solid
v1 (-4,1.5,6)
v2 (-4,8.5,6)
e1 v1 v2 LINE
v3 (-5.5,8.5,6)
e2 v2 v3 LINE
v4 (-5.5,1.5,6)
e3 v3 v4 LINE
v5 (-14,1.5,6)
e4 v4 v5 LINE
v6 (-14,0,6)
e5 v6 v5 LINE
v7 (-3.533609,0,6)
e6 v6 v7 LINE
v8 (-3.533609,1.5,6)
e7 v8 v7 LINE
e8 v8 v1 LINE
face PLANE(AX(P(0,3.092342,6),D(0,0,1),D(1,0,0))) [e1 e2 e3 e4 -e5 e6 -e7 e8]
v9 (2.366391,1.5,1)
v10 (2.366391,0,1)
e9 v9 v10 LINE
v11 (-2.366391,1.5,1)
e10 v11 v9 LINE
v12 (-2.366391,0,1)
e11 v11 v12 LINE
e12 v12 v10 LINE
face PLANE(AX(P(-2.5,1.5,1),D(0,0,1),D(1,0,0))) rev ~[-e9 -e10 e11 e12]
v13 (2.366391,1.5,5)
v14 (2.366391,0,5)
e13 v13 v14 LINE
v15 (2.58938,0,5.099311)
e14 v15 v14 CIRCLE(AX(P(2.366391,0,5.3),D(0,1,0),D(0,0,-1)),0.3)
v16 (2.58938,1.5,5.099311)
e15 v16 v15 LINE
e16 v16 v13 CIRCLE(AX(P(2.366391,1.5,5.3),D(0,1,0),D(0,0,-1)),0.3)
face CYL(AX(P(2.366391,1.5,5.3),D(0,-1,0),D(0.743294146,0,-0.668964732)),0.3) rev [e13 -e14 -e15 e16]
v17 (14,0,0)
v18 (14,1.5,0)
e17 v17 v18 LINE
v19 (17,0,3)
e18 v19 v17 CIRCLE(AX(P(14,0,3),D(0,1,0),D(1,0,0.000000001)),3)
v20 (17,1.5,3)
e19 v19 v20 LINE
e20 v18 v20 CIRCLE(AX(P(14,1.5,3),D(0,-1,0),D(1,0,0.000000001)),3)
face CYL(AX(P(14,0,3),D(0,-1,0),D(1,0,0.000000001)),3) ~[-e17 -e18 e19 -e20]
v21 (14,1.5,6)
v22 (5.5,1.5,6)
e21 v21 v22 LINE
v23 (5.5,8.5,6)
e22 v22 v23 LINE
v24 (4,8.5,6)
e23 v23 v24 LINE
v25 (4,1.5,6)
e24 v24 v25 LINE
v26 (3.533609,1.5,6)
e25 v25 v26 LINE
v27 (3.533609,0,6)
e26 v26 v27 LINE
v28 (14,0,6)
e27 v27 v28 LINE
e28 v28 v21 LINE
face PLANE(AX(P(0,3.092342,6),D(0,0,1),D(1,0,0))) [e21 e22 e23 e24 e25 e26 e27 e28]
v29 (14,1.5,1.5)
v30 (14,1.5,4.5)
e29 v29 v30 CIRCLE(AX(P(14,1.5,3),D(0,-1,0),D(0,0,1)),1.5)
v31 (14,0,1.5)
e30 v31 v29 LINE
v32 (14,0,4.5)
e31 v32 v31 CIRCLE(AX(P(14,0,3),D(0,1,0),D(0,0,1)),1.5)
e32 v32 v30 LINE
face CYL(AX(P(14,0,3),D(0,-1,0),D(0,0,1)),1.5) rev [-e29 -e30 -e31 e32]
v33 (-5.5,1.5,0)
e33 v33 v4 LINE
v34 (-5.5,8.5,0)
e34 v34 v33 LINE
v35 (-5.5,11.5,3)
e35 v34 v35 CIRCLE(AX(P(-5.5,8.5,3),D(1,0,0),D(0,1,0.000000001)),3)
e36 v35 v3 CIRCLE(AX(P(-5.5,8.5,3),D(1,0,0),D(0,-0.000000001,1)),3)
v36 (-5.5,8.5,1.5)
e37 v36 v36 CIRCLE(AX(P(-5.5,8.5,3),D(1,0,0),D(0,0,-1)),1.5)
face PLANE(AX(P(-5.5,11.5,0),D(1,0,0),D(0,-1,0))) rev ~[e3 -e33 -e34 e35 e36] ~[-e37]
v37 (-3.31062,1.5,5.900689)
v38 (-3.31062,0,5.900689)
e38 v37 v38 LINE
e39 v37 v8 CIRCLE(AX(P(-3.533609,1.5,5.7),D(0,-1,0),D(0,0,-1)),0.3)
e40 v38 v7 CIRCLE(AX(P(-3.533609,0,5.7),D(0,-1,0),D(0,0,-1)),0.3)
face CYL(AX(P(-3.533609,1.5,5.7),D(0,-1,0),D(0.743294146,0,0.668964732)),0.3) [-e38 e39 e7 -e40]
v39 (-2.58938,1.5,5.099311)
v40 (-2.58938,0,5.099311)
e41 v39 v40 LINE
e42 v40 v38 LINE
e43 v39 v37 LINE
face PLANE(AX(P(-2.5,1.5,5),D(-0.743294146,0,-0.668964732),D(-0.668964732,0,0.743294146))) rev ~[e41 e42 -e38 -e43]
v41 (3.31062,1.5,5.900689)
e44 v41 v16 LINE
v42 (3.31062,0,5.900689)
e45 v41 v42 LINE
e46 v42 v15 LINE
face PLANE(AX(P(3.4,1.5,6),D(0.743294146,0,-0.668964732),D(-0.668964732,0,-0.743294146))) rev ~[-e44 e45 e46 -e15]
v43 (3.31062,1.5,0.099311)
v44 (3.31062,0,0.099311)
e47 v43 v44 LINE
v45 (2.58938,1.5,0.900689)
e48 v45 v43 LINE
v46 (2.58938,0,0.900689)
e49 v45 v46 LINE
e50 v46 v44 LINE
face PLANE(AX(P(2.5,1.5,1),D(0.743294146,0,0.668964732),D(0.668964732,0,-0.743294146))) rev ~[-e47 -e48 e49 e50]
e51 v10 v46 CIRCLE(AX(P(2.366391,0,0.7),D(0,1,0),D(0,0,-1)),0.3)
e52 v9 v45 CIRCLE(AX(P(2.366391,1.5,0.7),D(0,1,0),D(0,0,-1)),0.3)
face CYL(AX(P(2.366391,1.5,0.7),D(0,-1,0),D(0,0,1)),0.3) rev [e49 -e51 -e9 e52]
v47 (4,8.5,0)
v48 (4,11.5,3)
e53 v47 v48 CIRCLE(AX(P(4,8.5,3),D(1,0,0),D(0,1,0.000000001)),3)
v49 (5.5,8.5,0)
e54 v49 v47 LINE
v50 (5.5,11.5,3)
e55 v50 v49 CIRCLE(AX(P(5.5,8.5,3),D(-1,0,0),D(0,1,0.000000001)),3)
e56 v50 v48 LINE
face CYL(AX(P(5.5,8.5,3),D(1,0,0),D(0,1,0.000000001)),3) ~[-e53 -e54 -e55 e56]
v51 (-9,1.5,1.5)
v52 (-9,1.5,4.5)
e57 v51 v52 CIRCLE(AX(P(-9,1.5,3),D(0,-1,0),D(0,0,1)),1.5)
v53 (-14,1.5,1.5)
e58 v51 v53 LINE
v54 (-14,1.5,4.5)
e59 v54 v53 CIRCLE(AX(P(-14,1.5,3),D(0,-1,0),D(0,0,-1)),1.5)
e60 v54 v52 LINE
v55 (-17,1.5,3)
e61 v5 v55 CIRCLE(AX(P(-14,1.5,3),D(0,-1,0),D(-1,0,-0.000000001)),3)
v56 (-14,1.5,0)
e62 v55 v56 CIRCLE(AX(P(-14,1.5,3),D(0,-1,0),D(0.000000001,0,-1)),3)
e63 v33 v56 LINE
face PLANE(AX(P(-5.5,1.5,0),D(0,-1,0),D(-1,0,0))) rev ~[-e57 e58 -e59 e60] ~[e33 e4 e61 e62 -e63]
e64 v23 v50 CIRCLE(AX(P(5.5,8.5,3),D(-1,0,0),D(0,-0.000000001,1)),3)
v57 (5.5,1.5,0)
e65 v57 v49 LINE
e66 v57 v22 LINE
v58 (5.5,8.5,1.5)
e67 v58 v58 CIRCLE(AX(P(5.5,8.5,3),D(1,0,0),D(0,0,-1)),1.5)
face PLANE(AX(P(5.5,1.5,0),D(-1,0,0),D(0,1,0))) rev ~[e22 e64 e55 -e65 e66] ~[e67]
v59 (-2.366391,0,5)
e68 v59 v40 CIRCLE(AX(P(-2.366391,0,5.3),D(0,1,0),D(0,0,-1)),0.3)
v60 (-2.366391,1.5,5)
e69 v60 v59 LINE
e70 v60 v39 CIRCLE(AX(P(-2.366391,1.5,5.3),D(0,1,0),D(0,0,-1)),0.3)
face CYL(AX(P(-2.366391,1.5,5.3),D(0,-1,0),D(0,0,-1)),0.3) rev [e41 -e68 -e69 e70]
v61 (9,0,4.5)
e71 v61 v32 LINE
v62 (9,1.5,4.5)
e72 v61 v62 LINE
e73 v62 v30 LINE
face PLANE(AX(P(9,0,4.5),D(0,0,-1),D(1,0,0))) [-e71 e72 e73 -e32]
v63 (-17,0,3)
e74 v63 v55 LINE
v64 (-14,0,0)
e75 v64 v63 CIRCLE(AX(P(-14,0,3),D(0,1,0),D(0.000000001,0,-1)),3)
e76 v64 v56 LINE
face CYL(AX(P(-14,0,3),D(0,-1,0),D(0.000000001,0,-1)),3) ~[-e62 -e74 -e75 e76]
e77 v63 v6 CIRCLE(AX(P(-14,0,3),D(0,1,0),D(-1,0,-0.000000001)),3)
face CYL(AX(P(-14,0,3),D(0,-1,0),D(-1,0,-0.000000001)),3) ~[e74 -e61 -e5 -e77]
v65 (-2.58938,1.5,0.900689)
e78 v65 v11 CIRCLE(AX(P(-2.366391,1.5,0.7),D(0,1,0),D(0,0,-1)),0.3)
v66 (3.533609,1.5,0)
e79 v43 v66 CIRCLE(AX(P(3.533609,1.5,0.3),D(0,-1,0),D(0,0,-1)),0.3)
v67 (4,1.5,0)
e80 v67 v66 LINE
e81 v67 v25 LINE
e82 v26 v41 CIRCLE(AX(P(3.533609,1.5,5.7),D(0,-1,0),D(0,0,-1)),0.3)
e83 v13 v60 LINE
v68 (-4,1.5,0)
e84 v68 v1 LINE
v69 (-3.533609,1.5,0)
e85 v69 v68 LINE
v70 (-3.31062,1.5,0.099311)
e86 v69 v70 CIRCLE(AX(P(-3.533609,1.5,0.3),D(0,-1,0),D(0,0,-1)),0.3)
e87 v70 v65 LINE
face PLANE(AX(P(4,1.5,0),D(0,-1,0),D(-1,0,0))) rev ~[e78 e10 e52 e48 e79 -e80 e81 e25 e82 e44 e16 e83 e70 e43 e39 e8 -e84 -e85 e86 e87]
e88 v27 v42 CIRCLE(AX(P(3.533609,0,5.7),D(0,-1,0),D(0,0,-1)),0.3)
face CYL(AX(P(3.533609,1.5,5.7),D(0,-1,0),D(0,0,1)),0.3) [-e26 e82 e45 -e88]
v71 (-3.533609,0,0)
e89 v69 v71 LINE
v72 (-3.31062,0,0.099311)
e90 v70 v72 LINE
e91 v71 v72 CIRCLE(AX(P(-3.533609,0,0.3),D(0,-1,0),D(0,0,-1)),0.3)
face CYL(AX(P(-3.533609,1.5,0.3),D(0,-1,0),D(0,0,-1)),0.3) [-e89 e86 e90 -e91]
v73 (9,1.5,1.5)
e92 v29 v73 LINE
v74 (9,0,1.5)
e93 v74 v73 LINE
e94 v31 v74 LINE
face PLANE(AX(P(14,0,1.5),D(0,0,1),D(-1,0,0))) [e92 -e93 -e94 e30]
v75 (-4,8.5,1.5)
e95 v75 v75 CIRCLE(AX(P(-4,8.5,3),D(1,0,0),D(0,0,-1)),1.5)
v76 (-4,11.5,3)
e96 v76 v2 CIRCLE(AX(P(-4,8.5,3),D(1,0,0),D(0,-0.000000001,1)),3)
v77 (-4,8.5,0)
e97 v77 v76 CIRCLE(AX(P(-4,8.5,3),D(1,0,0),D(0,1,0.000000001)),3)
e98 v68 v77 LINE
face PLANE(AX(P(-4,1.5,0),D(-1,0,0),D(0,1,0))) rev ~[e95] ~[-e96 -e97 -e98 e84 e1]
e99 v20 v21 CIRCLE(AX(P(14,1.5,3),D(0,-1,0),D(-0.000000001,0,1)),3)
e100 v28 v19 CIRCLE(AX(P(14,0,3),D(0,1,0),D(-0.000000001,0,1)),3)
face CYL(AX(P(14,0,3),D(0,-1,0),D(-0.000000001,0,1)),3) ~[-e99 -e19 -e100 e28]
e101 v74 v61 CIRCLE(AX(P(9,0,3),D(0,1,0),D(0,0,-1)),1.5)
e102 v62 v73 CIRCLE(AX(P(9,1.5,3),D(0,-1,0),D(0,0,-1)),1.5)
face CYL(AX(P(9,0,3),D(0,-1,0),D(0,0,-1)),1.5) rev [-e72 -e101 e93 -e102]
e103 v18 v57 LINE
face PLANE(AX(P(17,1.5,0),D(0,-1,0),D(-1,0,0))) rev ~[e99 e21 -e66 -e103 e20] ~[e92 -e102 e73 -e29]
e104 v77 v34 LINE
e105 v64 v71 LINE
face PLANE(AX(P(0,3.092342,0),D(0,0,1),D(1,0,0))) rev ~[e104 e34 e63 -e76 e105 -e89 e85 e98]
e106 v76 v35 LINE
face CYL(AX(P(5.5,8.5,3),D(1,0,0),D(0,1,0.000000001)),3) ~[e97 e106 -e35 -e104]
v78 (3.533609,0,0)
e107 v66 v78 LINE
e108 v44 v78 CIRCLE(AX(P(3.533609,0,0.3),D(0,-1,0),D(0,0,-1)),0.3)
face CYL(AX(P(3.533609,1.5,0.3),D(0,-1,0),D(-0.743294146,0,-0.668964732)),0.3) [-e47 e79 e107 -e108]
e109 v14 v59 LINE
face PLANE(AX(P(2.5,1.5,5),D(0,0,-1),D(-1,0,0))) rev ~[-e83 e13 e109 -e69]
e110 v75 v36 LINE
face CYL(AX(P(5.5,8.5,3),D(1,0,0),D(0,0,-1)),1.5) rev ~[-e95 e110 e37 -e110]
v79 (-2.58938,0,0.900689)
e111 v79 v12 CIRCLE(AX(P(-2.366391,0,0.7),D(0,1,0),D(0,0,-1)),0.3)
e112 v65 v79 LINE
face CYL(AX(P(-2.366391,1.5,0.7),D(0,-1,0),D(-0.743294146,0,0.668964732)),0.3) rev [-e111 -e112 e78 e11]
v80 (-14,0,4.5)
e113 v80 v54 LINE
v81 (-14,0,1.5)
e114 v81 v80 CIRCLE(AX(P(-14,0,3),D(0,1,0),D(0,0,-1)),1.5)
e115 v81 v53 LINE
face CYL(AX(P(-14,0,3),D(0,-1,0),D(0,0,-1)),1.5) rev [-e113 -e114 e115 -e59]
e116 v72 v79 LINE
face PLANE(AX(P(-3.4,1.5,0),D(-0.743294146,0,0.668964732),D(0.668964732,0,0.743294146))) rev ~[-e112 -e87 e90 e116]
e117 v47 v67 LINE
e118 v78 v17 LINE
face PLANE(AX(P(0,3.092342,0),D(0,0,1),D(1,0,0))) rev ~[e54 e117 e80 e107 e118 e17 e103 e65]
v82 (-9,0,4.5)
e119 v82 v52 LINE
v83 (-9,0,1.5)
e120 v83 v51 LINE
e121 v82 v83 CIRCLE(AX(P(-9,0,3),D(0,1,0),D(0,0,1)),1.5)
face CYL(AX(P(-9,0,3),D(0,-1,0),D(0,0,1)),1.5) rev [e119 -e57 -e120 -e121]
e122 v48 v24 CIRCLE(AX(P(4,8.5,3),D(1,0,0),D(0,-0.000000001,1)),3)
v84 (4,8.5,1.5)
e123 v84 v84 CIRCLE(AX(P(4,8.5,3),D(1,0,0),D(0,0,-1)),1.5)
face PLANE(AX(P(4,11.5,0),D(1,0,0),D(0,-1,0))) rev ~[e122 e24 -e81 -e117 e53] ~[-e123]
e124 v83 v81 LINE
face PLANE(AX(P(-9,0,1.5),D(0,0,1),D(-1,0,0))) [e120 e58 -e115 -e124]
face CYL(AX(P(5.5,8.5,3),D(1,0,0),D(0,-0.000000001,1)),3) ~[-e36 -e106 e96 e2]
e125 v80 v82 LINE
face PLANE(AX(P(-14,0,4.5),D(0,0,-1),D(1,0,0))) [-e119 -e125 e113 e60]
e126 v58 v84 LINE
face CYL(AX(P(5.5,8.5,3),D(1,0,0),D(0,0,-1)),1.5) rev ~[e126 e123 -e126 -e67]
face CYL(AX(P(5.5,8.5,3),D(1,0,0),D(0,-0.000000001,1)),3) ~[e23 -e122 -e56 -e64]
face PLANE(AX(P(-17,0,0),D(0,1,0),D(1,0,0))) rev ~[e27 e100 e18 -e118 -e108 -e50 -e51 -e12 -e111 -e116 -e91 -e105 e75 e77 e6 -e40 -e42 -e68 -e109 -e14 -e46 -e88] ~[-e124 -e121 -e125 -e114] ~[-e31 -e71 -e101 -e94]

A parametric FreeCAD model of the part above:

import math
import FreeCAD as App
import Part
import Sketcher
from FreeCAD import Vector


def edges_at(feature, points):
    """Names of the edges that pass closest to the given points."""
    edges = feature.Shape.Edges
    near = lambda p: min(range(len(edges)), key=lambda i: edges[i].distToShape(Part.Vertex(*p))[0])
    return sorted({f"Edge{near(p) + 1}" for p in points})


def add_polygon(sketch, points):
    """Adds a closed chain of lines whose ends are joined by coincident constraints."""
    first, n = sketch.GeometryCount, len(points)
    for a, b in zip(points, points[1:] + points[:1]):
        sketch.addGeometry(Part.LineSegment(App.Vector(*a, 0), App.Vector(*b, 0)), False)
    for i in range(n):
        sketch.addConstraint(Sketcher.Constraint("Coincident", first + i, 2, first + (i + 1) % n, 1))

doc = App.newDocument("Part")
body = doc.addObject("PartDesign::Body", "Body")

sketch1 = body.newObject("Sketcher::SketchObject", "Sketch")
sketch1.AttachmentSupport = (doc.getObject("XY_Plane"), [""])
sketch1.MapMode = "FlatFace"
add_polygon(sketch1, [(-17, 0), (17, 0), (17, 1.5), (5.5, 1.5), (5.5, 11.5), (4, 11.5), (4, 1.5), (-4, 1.5), (-4, 11.5), (-5.5, 11.5), (-5.5, 1.5), (-17, 1.5)])
sketch1.addConstraint([
    Sketcher.Constraint("Horizontal", 0),
    Sketcher.Constraint("Vertical", 1),
    Sketcher.Constraint("Horizontal", 2),
    Sketcher.Constraint("Vertical", 3),
    Sketcher.Constraint("Horizontal", 4),
    Sketcher.Constraint("Vertical", 5),
    Sketcher.Constraint("Horizontal", 6),
    Sketcher.Constraint("Vertical", 7),
    Sketcher.Constraint("Horizontal", 8),
    Sketcher.Constraint("Vertical", 9),
    Sketcher.Constraint("Horizontal", 10),
    Sketcher.Constraint("Vertical", 11),
    Sketcher.Constraint("Symmetric", 0, 2, 11, 2, -1, 1),
    Sketcher.Constraint("Symmetric", 4, 2, 7, 2, -2),
    Sketcher.Constraint("Symmetric", 2, 2, 9, 2, -2),
    Sketcher.Constraint("Horizontal", 2, 2, 5, 2),
    Sketcher.Constraint("Equal", 8, 1),
    Sketcher.Constraint("DistanceX", 0, 1, 0, 2, 34.0),
    Sketcher.Constraint("DistanceX", 6, 2, 6, 1, 8.0),
    Sketcher.Constraint("DistanceY", 3, 1, 3, 2, 10.0),
    Sketcher.Constraint("DistanceX", 2, 2, 2, 1, 11.5),
])
pad1 = body.newObject("PartDesign::Pad", "Pad")
pad1.Profile = sketch1
pad1.Length = 6

sketch2 = body.newObject("Sketcher::SketchObject", "Sketch001")
sketch2.AttachmentSupport = (doc.getObject("XZ_Plane"), [""])
sketch2.MapMode = "FlatFace"
sketch2.addGeometry([
    Part.LineSegment(Vector(-14, 6, 0), Vector(-17, 6, 0)),
    Part.LineSegment(Vector(-17, 6, 0), Vector(-17, 3, 0)),
    Part.ArcOfCircle(Part.Circle(Vector(-14, 3, 0), Vector(0, 0, 1), 3), math.radians(90), math.radians(180)),
    Part.ArcOfCircle(Part.Circle(Vector(-14, 3, 0), Vector(0, 0, 1), 3), math.radians(180), math.radians(270)),
    Part.LineSegment(Vector(-17, 3, 0), Vector(-17, 0, 0)),
    Part.LineSegment(Vector(-17, 0, 0), Vector(-14, 0, 0)),
    Part.LineSegment(Vector(17, 0, 0), Vector(17, 3, 0)),
    Part.ArcOfCircle(Part.Circle(Vector(14, 3, 0), Vector(0, 0, 1), 3), math.radians(-90), math.radians(0)),
    Part.LineSegment(Vector(14, 0, 0), Vector(17, 0, 0)),
    Part.LineSegment(Vector(17, 6, 0), Vector(14, 6, 0)),
    Part.ArcOfCircle(Part.Circle(Vector(14, 3, 0), Vector(0, 0, 1), 3), math.radians(0), math.radians(90)),
    Part.LineSegment(Vector(17, 3, 0), Vector(17, 6, 0)),
], False)
sketch2.addConstraint([
    Sketcher.Constraint("Coincident", 0, 2, 1, 1),
    Sketcher.Constraint("Tangent", 1, 2, 2, 2),
    Sketcher.Constraint("Tangent", 2, 1, 0, 1),
    Sketcher.Constraint("Tangent", 3, 1, 4, 1),
    Sketcher.Constraint("Coincident", 4, 2, 5, 1),
    Sketcher.Constraint("Tangent", 5, 2, 3, 2),
    Sketcher.Constraint("Tangent", 6, 2, 7, 2),
    Sketcher.Constraint("Tangent", 7, 1, 8, 1),
    Sketcher.Constraint("Coincident", 8, 2, 6, 1),
    Sketcher.Constraint("Tangent", 9, 2, 10, 2),
    Sketcher.Constraint("Tangent", 10, 1, 11, 1),
    Sketcher.Constraint("Coincident", 11, 2, 9, 1),
    Sketcher.Constraint("Horizontal", 0),
    Sketcher.Constraint("Vertical", 1),
    Sketcher.Constraint("Vertical", 4),
    Sketcher.Constraint("Horizontal", 5),
    Sketcher.Constraint("Vertical", 6),
    Sketcher.Constraint("Horizontal", 8),
    Sketcher.Constraint("Horizontal", 9),
    Sketcher.Constraint("Vertical", 11),
    Sketcher.Constraint("Coincident", 3, 3, 2, 3),
    Sketcher.Constraint("Coincident", 10, 3, 7, 3),
    Sketcher.Constraint("Equal", 2, 3),
    Sketcher.Constraint("Equal", 3, 7),
    Sketcher.Constraint("Equal", 7, 10),
    Sketcher.Constraint("Symmetric", 5, 2, 7, 1, -1, 1),
    Sketcher.Constraint("PointOnObject", 4, 2, -1),
    Sketcher.Constraint("Radius", 2, 3.0),
    Sketcher.Constraint("DistanceX", 2, 3, -1, 1, 14.0),
])
pocket1 = body.newObject("PartDesign::Pocket", "Pocket")
pocket1.Profile = sketch2
pocket1.Type = "ThroughAll"

sketch3 = body.newObject("Sketcher::SketchObject", "Sketch002")
sketch3.AttachmentSupport = (doc.getObject("XZ_Plane"), [""])
sketch3.MapMode = "FlatFace"
sketch3.addGeometry([
    Part.LineSegment(Vector(-14, 1.5, 0), Vector(-9, 1.5, 0)),
    Part.ArcOfCircle(Part.Circle(Vector(-9, 3, 0), Vector(0, 0, 1), 1.5), math.radians(-90), math.radians(90)),
    Part.LineSegment(Vector(-9, 4.5, 0), Vector(-14, 4.5, 0)),
    Part.ArcOfCircle(Part.Circle(Vector(-14, 3, 0), Vector(0, 0, 1), 1.5), math.radians(90), math.radians(270)),
    Part.LineSegment(Vector(14, 4.5, 0), Vector(9, 4.5, 0)),
    Part.ArcOfCircle(Part.Circle(Vector(9, 3, 0), Vector(0, 0, 1), 1.5), math.radians(90), math.radians(270)),
    Part.LineSegment(Vector(9, 1.5, 0), Vector(14, 1.5, 0)),
    Part.ArcOfCircle(Part.Circle(Vector(14, 3, 0), Vector(0, 0, 1), 1.5), math.radians(-90), math.radians(90)),
], False)
sketch3.addConstraint([
    Sketcher.Constraint("Tangent", 0, 2, 1, 1),
    Sketcher.Constraint("Tangent", 1, 2, 2, 1),
    Sketcher.Constraint("Tangent", 2, 2, 3, 1),
    Sketcher.Constraint("Tangent", 3, 2, 0, 1),
    Sketcher.Constraint("Tangent", 4, 2, 5, 1),
    Sketcher.Constraint("Tangent", 5, 2, 6, 1),
    Sketcher.Constraint("Tangent", 6, 2, 7, 1),
    Sketcher.Constraint("Tangent", 7, 2, 4, 1),
    Sketcher.Constraint("Horizontal", 0),
    Sketcher.Constraint("Horizontal", 2),
    Sketcher.Constraint("Horizontal", 4),
    Sketcher.Constraint("Horizontal", 6),
    Sketcher.Constraint("Equal", 3, 5),
    Sketcher.Constraint("Symmetric", 1, 3, 5, 3, -2),
    Sketcher.Constraint("Equal", 2, 4),
    Sketcher.Constraint("Radius", 1, 1.5),
    Sketcher.Constraint("DistanceX", 0, 1, 0, 2, 5.0),
    Sketcher.Constraint("DistanceX", 1, 3, -1, 1, 9.0),
    Sketcher.Constraint("DistanceY", -1, 1, 1, 3, 3.0),
])
pocket2 = body.newObject("PartDesign::Pocket", "Pocket001")
pocket2.Profile = sketch3
pocket2.Type = "ThroughAll"

sketch4 = body.newObject("Sketcher::SketchObject", "Sketch003")
sketch4.AttachmentSupport = (doc.getObject("YZ_Plane"), [""])
sketch4.MapMode = "FlatFace"
sketch4.AttachmentOffset = App.Placement(Vector(0, 0, 5.5), App.Rotation())
sketch4.addGeometry([
    Part.LineSegment(Vector(11.5, 3, 0), Vector(11.5, 6, 0)),
    Part.LineSegment(Vector(11.5, 6, 0), Vector(8.5, 6, 0)),
    Part.ArcOfCircle(Part.Circle(Vector(8.5, 3, 0), Vector(0, 0, 1), 3), math.radians(0), math.radians(90)),
    Part.LineSegment(Vector(11.5, 0, 0), Vector(11.5, 3, 0)),
    Part.ArcOfCircle(Part.Circle(Vector(8.5, 3, 0), Vector(0, 0, 1), 3), math.radians(-90), math.radians(0)),
    Part.LineSegment(Vector(8.5, 0, 0), Vector(11.5, 0, 0)),
    Part.Circle(Vector(8.5, 3, 0), Vector(0, 0, 1), 1.5),
], False)
sketch4.addConstraint([
    Sketcher.Constraint("Coincident", 0, 2, 1, 1),
    Sketcher.Constraint("Tangent", 1, 2, 2, 2),
    Sketcher.Constraint("Tangent", 2, 1, 0, 1),
    Sketcher.Constraint("Tangent", 3, 2, 4, 2),
    Sketcher.Constraint("Tangent", 4, 1, 5, 1),
    Sketcher.Constraint("Coincident", 5, 2, 3, 1),
    Sketcher.Constraint("Vertical", 0),
    Sketcher.Constraint("Horizontal", 1),
    Sketcher.Constraint("Vertical", 3),
    Sketcher.Constraint("Horizontal", 5),
    Sketcher.Constraint("Coincident", 4, 3, 2, 3),
    Sketcher.Constraint("Coincident", 6, 3, 2, 3),
    Sketcher.Constraint("Equal", 2, 4),
    Sketcher.Constraint("PointOnObject", 4, 1, -1),
    Sketcher.Constraint("Diameter", 6, 3.0),
    Sketcher.Constraint("Radius", 2, 3.0),
    Sketcher.Constraint("DistanceX", -1, 1, 2, 3, 8.5),
])
pocket3 = body.newObject("PartDesign::Pocket", "Pocket002")
pocket3.Profile = sketch4
pocket3.Type = "ThroughAll"

sketch5 = body.newObject("Sketcher::SketchObject", "Sketch004")
sketch5.AttachmentSupport = (doc.getObject("XZ_Plane"), [""])
sketch5.MapMode = "FlatFace"
sketch5.AttachmentOffset = App.Placement(Vector(0, 0, -1.5), App.Rotation())
add_polygon(sketch5, [(2.5, 1), (3.4, 0), (-3.4, 0), (-2.5, 1)])
add_polygon(sketch5, [(-3.4, 6), (3.4, 6), (2.5, 5), (-2.5, 5)])
sketch5.addConstraint([
    Sketcher.Constraint("Horizontal", 1),
    Sketcher.Constraint("Horizontal", 3),
    Sketcher.Constraint("Horizontal", 4),
    Sketcher.Constraint("Horizontal", 6),
    Sketcher.Constraint("Symmetric", 0, 2, 1, 2, -1, 1),
    Sketcher.Constraint("Parallel", 2, 5),
    Sketcher.Constraint("Parallel", 0, 7),
    Sketcher.Constraint("Vertical", 0, 2, 4, 2),
    Sketcher.Constraint("Vertical", 3, 2, 5, 2),
    Sketcher.Constraint("Vertical", 2, 2, 6, 2),
    Sketcher.Constraint("Vertical", 1, 2, 7, 2),
    Sketcher.Constraint("DistanceX", 3, 1, 3, 2, 5.0),
    Sketcher.Constraint("DistanceX", 1, 2, 1, 1, 6.8),
    Sketcher.Constraint("DistanceY", -1, 1, 2, 2, 1.0),
    Sketcher.Constraint("DistanceY", -1, 1, 4, 2, 6.0),
])
pocket4 = body.newObject("PartDesign::Pocket", "Pocket003")
pocket4.Profile = sketch5
pocket4.Type = "ThroughAll"
pocket4.Reversed = True
doc.recompute()

fillet = body.newObject("PartDesign::Fillet", "Fillet")
fillet.Base = (pocket4, edges_at(pocket4, [
    (-2.5, 0.75, 1),
    (-3.4, 0.75, 0),
    (3.4, 0.75, 0),
    (2.5, 0.75, 1),
    (-2.5, 0.75, 5),
    (2.5, 0.75, 5),
    (3.4, 0.75, 6),
    (-3.4, 0.75, 6),
]))
fillet.Radius = 0.3

doc.recompute()
